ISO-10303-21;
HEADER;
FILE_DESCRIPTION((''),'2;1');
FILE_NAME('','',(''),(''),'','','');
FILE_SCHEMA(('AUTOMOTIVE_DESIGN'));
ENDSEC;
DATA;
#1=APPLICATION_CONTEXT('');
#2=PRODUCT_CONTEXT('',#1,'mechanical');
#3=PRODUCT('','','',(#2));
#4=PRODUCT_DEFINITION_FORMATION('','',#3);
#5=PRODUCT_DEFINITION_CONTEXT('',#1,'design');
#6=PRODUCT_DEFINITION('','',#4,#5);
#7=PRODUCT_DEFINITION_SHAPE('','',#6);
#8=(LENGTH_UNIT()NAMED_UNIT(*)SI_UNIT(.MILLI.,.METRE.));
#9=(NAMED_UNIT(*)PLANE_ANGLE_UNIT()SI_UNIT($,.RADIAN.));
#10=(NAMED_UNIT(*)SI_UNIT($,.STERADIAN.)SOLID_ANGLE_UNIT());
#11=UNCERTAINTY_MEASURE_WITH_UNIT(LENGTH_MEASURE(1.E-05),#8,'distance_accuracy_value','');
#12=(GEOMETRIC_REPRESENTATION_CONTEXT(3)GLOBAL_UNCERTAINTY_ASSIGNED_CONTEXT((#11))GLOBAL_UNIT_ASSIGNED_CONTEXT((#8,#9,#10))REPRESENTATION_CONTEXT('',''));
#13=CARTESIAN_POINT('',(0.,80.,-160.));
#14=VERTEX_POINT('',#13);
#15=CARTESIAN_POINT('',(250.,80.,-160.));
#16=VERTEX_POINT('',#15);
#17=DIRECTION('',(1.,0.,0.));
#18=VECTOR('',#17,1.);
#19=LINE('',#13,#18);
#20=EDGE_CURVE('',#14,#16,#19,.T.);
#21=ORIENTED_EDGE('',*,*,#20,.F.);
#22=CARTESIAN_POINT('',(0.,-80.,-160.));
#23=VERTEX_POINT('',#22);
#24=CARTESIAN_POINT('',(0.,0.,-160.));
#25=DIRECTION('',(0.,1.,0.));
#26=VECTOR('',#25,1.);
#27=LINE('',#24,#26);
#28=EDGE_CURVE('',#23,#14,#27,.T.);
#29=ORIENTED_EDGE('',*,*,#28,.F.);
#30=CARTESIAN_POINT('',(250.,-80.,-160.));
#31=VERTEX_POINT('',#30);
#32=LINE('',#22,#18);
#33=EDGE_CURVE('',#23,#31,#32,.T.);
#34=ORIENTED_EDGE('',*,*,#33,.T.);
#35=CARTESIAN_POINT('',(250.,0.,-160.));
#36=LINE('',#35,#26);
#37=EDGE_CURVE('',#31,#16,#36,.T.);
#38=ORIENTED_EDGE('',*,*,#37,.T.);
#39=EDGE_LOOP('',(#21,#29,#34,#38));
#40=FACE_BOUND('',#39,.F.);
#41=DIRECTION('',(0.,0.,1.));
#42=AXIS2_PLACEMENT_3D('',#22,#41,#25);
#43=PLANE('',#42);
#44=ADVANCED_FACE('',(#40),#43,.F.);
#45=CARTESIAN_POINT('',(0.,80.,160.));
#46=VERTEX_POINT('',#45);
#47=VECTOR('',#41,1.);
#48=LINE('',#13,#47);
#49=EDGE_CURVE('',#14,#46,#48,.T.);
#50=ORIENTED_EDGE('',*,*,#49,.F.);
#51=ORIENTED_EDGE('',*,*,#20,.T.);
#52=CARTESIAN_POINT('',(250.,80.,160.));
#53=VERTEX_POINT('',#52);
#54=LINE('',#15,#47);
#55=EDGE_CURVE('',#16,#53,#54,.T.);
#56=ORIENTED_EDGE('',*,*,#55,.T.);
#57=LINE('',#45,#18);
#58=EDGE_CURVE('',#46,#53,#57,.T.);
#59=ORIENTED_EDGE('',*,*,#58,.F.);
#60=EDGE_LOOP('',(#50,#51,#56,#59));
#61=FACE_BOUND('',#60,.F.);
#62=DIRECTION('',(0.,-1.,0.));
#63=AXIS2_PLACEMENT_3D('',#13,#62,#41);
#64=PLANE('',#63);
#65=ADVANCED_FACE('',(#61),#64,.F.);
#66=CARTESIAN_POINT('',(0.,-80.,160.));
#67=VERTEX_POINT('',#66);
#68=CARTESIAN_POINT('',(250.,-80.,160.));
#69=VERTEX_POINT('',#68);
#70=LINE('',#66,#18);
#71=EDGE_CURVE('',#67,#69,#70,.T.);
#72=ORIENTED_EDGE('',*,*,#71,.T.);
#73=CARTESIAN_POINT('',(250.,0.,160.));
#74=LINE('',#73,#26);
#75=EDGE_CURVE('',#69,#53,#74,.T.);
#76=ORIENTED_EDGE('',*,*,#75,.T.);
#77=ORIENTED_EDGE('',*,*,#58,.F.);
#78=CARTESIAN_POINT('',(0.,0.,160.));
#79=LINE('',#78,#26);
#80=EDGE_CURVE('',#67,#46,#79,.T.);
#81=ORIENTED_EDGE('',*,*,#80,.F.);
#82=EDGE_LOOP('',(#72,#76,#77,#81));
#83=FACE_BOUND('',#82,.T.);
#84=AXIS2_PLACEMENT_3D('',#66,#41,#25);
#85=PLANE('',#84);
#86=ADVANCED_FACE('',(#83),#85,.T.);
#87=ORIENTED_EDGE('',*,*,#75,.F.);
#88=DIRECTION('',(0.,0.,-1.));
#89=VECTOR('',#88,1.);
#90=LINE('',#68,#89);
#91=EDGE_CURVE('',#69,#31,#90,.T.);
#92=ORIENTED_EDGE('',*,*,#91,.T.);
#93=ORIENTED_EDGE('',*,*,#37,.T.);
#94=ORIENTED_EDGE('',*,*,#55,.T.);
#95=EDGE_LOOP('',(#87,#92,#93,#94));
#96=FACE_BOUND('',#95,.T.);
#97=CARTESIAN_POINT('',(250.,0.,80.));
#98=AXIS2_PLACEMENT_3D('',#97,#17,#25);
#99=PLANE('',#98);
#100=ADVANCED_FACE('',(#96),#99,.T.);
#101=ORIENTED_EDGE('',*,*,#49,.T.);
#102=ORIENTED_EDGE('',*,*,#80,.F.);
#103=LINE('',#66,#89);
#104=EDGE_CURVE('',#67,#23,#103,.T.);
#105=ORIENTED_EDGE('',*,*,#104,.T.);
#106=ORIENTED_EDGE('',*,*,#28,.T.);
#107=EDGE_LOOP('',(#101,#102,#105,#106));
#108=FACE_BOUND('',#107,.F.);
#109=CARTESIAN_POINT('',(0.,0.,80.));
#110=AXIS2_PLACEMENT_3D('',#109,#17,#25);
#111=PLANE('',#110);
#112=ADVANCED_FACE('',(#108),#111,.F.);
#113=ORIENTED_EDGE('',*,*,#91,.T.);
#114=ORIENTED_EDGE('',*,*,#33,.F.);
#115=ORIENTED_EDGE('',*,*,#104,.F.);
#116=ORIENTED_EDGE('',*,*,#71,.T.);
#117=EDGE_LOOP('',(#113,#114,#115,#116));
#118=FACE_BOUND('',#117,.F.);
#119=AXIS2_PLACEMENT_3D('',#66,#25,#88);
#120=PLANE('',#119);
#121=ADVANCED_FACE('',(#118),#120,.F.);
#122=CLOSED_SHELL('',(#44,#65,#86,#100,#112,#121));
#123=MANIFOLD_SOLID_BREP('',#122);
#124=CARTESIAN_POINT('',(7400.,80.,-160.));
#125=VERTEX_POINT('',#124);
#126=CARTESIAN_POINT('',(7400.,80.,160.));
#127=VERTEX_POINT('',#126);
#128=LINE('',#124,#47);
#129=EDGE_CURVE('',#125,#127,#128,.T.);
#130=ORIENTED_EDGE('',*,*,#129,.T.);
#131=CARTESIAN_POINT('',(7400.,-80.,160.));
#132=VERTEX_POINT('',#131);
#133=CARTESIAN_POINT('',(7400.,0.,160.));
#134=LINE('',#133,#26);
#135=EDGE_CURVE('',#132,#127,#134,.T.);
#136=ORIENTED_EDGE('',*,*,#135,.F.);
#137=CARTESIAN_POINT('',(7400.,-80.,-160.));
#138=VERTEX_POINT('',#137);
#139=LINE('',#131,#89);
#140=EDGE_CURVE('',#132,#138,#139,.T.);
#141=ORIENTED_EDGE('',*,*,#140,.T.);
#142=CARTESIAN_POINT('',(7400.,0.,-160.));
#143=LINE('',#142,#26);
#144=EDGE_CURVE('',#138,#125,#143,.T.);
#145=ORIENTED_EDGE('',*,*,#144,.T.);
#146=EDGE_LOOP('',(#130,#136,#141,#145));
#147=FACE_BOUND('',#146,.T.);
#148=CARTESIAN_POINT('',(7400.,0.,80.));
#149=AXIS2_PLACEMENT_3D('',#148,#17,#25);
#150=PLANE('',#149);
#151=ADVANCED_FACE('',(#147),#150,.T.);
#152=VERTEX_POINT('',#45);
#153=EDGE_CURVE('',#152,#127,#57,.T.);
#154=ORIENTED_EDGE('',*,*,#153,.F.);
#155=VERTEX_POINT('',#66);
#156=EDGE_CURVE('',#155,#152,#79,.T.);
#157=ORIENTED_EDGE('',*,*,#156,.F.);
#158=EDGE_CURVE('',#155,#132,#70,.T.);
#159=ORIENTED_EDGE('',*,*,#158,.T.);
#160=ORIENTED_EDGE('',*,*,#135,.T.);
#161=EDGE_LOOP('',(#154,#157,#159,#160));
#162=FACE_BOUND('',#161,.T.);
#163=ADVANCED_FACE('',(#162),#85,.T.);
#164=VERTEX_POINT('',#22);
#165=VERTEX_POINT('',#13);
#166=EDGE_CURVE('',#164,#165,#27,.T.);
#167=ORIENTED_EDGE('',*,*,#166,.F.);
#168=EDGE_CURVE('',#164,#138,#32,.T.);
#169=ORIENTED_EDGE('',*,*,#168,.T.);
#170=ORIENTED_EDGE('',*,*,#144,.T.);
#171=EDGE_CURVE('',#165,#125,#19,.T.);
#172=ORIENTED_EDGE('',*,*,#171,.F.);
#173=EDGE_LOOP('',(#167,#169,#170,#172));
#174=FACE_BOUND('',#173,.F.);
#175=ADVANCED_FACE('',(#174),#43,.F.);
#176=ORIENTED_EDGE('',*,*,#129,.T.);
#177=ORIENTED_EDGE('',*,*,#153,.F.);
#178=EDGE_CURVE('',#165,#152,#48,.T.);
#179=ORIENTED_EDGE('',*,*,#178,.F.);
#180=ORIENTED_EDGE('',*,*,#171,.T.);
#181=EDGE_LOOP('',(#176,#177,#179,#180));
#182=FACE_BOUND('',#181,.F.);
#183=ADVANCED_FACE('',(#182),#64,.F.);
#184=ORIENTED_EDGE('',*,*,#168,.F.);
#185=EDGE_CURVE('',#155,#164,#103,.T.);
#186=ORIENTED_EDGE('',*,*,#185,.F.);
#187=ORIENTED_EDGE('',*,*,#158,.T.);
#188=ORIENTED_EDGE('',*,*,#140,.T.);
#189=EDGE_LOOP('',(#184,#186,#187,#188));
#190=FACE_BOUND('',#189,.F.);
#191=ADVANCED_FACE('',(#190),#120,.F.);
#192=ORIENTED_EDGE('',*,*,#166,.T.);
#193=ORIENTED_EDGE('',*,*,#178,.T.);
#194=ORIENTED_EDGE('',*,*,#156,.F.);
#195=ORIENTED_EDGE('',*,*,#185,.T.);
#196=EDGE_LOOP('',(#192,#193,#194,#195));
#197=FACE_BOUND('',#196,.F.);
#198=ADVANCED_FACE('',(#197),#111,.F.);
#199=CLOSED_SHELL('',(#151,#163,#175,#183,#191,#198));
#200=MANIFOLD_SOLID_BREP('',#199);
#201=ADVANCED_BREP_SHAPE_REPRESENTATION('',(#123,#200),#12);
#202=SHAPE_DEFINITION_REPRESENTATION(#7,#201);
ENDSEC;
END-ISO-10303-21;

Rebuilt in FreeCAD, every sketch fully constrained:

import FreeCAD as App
import Part
import Sketcher
Q = App.Units.Quantity


def add_polygon(sketch, points):
    """Adds a closed chain of lines whose ends are joined by coincident constraints."""
    first, n = sketch.GeometryCount, len(points)
    for a, b in zip(points, points[1:] + points[:1]):
        sketch.addGeometry(Part.LineSegment(App.Vector(*a, 0), App.Vector(*b, 0)), False)
    for i in range(n):
        sketch.addConstraint(Sketcher.Constraint("Coincident", first + i, 2, first + (i + 1) % n, 1))

doc = App.newDocument("Part")
params = doc.addObject("Spreadsheet::Sheet", "Params")
for row, (alias, value) in enumerate([
    ("sketch1_width", "160 mm"),
    ("sketch1_height", "320 mm"),
    ("pad1_length", "7400 mm"),
    ("sketch2_width", "160 mm"),
    ("sketch2_height", "320 mm"),
    ("pad2_length", "250 mm"),
], start=1):
    params.set(f"A{row}", alias)
    params.set(f"B{row}", "=" + value)
    params.setAlias(f"B{row}", alias)

body = doc.addObject("PartDesign::Body", "Body")

sketch1 = body.newObject("Sketcher::SketchObject", "Sketch")
sketch1.AttachmentSupport = (doc.getObject("YZ_Plane"), [""])
sketch1.MapMode = "FlatFace"
add_polygon(sketch1, [(-80, 160), (-80, -160), (80, -160), (80, 160)])
sketch1.addConstraint([
    Sketcher.Constraint("Vertical", 0),
    Sketcher.Constraint("Horizontal", 1),
    Sketcher.Constraint("Vertical", 2),
    Sketcher.Constraint("Horizontal", 3),
    Sketcher.Constraint("Symmetric", 0, 2, 2, 2, -1, 1),
    Sketcher.Constraint("DistanceX", 1, 1, 1, 2, Q("160 mm")),
    Sketcher.Constraint("DistanceY", 0, 2, 0, 1, Q("320 mm")),
])
sketch1.setExpression("Constraints[9]", "Params.sketch1_width")
sketch1.setExpression("Constraints[10]", "Params.sketch1_height")
pad1 = body.newObject("PartDesign::Pad", "Pad")
pad1.Profile = sketch1
pad1.setExpression("Length", "Params.pad1_length")
body2 = doc.addObject("PartDesign::Body", "Body001")

sketch2 = body2.newObject("Sketcher::SketchObject", "Sketch001")
sketch2.AttachmentSupport = (doc.getObject("YZ_Plane001"), [""])
sketch2.MapMode = "FlatFace"
add_polygon(sketch2, [(-80, 160), (-80, -160), (80, -160), (80, 160)])
sketch2.addConstraint([
    Sketcher.Constraint("Vertical", 0),
    Sketcher.Constraint("Horizontal", 1),
    Sketcher.Constraint("Vertical", 2),
    Sketcher.Constraint("Horizontal", 3),
    Sketcher.Constraint("Symmetric", 0, 2, 2, 2, -1, 1),
    Sketcher.Constraint("DistanceX", 1, 1, 1, 2, Q("160 mm")),
    Sketcher.Constraint("DistanceY", 0, 2, 0, 1, Q("320 mm")),
])
sketch2.setExpression("Constraints[9]", "Params.sketch2_width")
sketch2.setExpression("Constraints[10]", "Params.sketch2_height")
pad2 = body2.newObject("PartDesign::Pad", "Pad001")
pad2.Profile = sketch2
pad2.setExpression("Length", "Params.pad2_length")

doc.recompute()
